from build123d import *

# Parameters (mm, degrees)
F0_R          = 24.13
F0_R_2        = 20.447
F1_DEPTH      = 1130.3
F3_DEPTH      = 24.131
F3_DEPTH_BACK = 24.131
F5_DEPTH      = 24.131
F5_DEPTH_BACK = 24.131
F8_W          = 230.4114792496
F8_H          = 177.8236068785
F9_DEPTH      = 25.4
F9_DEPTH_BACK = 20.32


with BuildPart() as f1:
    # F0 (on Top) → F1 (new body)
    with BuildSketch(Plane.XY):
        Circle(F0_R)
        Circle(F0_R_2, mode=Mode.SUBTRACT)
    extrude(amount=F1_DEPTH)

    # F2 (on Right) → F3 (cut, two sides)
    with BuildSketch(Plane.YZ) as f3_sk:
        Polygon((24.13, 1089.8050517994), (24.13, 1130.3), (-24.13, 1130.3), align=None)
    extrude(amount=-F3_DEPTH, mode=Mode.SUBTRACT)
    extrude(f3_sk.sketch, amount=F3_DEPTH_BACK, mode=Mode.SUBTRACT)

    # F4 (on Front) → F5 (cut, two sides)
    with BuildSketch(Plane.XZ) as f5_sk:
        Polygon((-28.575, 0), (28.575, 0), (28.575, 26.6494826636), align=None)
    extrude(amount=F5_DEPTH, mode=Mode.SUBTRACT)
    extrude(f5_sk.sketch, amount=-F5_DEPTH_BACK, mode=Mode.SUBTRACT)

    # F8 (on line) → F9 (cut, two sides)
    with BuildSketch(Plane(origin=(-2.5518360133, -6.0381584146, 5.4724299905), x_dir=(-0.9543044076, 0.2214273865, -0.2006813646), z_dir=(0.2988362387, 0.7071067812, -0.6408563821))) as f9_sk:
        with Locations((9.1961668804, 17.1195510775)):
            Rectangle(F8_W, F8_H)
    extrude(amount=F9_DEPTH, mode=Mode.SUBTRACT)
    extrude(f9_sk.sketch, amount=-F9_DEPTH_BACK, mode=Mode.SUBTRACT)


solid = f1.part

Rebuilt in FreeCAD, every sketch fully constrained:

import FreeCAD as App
import Part
import Sketcher
from FreeCAD import Vector
Q = App.Units.Quantity

doc = App.newDocument("Part")
body = doc.addObject("PartDesign::Body", "Body")

sketch1 = body.newObject("Sketcher::SketchObject", "Sketch")
sketch1.AttachmentSupport = (doc.getObject("XY_Plane"), [""])
sketch1.MapMode = "FlatFace"
sketch1.addGeometry(Part.Circle(Vector(0, 0, 0), Vector(0, 0, 1), 24), False)
sketch1.addGeometry(Part.Circle(Vector(0, 0, 0), Vector(0, 0, 1), 20), False)
sketch1.addConstraint(Sketcher.Constraint("Coincident", 0, 3, -1, 1))
sketch1.addConstraint(Sketcher.Constraint("Coincident", 1, 3, -1, 1))
sketch1.addConstraint(Sketcher.Constraint("Diameter", 0, Q("1.9 in")))
sketch1.addConstraint(Sketcher.Constraint("Diameter", 1, Q("1.61 in")))
pad1 = body.newObject("PartDesign::Pad", "Pad")
pad1.Profile = sketch1
pad1.Length = Q("44.5 in")

sketch2 = body.newObject("Sketcher::SketchObject", "Sketch001")
sketch2.AttachmentSupport = (doc.getObject("YZ_Plane"), [""])
sketch2.MapMode = "FlatFace"
sketch2.addGeometry(Part.LineSegment(Vector(24, 1090, 0), Vector(24, 1130, 0)), False)
sketch2.addGeometry(Part.LineSegment(Vector(24, 1130, 0), Vector(-24, 1130, 0)), False)
sketch2.addGeometry(Part.LineSegment(Vector(-24, 1130, 0), Vector(24, 1090, 0)), False)
sketch2.addConstraint(Sketcher.Constraint("Coincident", 0, 2, 1, 1))
sketch2.addConstraint(Sketcher.Constraint("Coincident", 1, 2, 2, 1))
sketch2.addConstraint(Sketcher.Constraint("Coincident", 2, 2, 0, 1))
sketch2.addConstraint(Sketcher.Constraint("Vertical", 0))
sketch2.addConstraint(Sketcher.Constraint("Horizontal", 1))
sketch2.addConstraint(Sketcher.Constraint("DistanceX", 1, 2, 1, 1, Q("1.9 in")))
sketch2.addConstraint(Sketcher.Constraint("Angle", 2, Q("-40 deg")))
sketch2.addConstraint(Sketcher.Constraint("DistanceY", -1, 1, 0, 2, Q("44.5 in")))
sketch2.addConstraint(Sketcher.Constraint("DistanceX", -1, 1, 0, 2, Q("0.95 in")))
pocket1 = body.newObject("PartDesign::Pocket", "Pocket")
pocket1.Profile = sketch2
pocket1.Type = "ThroughAll"
pocket1.Midplane = True

sketch3 = body.newObject("Sketcher::SketchObject", "Sketch002")
sketch3.AttachmentSupport = (doc.getObject("XZ_Plane"), [""])
sketch3.MapMode = "FlatFace"
sketch3.addGeometry(Part.LineSegment(Vector(-29, 0, 0), Vector(29, 0, 0)), False)
sketch3.addGeometry(Part.LineSegment(Vector(29, 0, 0), Vector(29, 27, 0)), False)
sketch3.addGeometry(Part.LineSegment(Vector(29, 27, 0), Vector(-29, 0, 0)), False)
sketch3.addConstraint(Sketcher.Constraint("Coincident", 0, 2, 1, 1))
sketch3.addConstraint(Sketcher.Constraint("Coincident", 1, 2, 2, 1))
sketch3.addConstraint(Sketcher.Constraint("Coincident", 2, 2, 0, 1))
sketch3.addConstraint(Sketcher.Constraint("Horizontal", 0))
sketch3.addConstraint(Sketcher.Constraint("Vertical", 1))
sketch3.addConstraint(Sketcher.Constraint("Symmetric", 0, 2, 2, 2, -1, 1))
sketch3.addConstraint(Sketcher.Constraint("Angle", 2, Q("-155 deg")))
sketch3.addConstraint(Sketcher.Constraint("DistanceX", 0, 1, 0, 2, Q("2.25 in")))
pocket2 = body.newObject("PartDesign::Pocket", "Pocket001")
pocket2.Profile = sketch3
pocket2.Type = "ThroughAll"
pocket2.Midplane = True

sketch4 = body.newObject("Sketcher::SketchObject", "Sketch003")
sketch4.Placement = App.Placement(Vector(-2.551836, -6.038158, 5.47243), App.Rotation(Vector(-0.954304408, 0.221427386, -0.200681365), Vector(-0.000000001, 0.671542935, 0.740965645), Vector(0.298836239, 0.707106781, -0.640856382), "ZXY"))
sketch4.addGeometry(Part.LineSegment(Vector(-106, 106, 0), Vector(-106, -72, 0)), False)
sketch4.addGeometry(Part.LineSegment(Vector(-106, -72, 0), Vector(124, -72, 0)), False)
sketch4.addGeometry(Part.LineSegment(Vector(124, -72, 0), Vector(124, 106, 0)), False)
sketch4.addGeometry(Part.LineSegment(Vector(124, 106, 0), Vector(-106, 106, 0)), False)
sketch4.addConstraint(Sketcher.Constraint("Coincident", 0, 2, 1, 1))
sketch4.addConstraint(Sketcher.Constraint("Coincident", 1, 2, 2, 1))
sketch4.addConstraint(Sketcher.Constraint("Coincident", 2, 2, 3, 1))
sketch4.addConstraint(Sketcher.Constraint("Coincident", 3, 2, 0, 1))
sketch4.addConstraint(Sketcher.Constraint("Vertical", 0))
sketch4.addConstraint(Sketcher.Constraint("Horizontal", 1))
sketch4.addConstraint(Sketcher.Constraint("Vertical", 2))
sketch4.addConstraint(Sketcher.Constraint("Horizontal", 3))
sketch4.addConstraint(Sketcher.Constraint("DistanceX", 1, 1, 1, 2, Q("230.411479 mm")))
sketch4.addConstraint(Sketcher.Constraint("DistanceY", 0, 2, 0, 1, Q("177.823607 mm")))
sketch4.addConstraint(Sketcher.Constraint("DistanceX", 0, 2, -1, 1, Q("106.009573 mm")))
sketch4.addConstraint(Sketcher.Constraint("DistanceY", 0, 2, -1, 1, Q("71.792252 mm")))
pocket3 = body.newObject("PartDesign::Pocket", "Pocket002")
pocket3.Profile = sketch4
pocket3.Type = "TwoLengths"
pocket3.Length = Q("1 in")
pocket3.Length2 = Q("0.8 in")
pocket3.Reversed = True

doc.recompute()
